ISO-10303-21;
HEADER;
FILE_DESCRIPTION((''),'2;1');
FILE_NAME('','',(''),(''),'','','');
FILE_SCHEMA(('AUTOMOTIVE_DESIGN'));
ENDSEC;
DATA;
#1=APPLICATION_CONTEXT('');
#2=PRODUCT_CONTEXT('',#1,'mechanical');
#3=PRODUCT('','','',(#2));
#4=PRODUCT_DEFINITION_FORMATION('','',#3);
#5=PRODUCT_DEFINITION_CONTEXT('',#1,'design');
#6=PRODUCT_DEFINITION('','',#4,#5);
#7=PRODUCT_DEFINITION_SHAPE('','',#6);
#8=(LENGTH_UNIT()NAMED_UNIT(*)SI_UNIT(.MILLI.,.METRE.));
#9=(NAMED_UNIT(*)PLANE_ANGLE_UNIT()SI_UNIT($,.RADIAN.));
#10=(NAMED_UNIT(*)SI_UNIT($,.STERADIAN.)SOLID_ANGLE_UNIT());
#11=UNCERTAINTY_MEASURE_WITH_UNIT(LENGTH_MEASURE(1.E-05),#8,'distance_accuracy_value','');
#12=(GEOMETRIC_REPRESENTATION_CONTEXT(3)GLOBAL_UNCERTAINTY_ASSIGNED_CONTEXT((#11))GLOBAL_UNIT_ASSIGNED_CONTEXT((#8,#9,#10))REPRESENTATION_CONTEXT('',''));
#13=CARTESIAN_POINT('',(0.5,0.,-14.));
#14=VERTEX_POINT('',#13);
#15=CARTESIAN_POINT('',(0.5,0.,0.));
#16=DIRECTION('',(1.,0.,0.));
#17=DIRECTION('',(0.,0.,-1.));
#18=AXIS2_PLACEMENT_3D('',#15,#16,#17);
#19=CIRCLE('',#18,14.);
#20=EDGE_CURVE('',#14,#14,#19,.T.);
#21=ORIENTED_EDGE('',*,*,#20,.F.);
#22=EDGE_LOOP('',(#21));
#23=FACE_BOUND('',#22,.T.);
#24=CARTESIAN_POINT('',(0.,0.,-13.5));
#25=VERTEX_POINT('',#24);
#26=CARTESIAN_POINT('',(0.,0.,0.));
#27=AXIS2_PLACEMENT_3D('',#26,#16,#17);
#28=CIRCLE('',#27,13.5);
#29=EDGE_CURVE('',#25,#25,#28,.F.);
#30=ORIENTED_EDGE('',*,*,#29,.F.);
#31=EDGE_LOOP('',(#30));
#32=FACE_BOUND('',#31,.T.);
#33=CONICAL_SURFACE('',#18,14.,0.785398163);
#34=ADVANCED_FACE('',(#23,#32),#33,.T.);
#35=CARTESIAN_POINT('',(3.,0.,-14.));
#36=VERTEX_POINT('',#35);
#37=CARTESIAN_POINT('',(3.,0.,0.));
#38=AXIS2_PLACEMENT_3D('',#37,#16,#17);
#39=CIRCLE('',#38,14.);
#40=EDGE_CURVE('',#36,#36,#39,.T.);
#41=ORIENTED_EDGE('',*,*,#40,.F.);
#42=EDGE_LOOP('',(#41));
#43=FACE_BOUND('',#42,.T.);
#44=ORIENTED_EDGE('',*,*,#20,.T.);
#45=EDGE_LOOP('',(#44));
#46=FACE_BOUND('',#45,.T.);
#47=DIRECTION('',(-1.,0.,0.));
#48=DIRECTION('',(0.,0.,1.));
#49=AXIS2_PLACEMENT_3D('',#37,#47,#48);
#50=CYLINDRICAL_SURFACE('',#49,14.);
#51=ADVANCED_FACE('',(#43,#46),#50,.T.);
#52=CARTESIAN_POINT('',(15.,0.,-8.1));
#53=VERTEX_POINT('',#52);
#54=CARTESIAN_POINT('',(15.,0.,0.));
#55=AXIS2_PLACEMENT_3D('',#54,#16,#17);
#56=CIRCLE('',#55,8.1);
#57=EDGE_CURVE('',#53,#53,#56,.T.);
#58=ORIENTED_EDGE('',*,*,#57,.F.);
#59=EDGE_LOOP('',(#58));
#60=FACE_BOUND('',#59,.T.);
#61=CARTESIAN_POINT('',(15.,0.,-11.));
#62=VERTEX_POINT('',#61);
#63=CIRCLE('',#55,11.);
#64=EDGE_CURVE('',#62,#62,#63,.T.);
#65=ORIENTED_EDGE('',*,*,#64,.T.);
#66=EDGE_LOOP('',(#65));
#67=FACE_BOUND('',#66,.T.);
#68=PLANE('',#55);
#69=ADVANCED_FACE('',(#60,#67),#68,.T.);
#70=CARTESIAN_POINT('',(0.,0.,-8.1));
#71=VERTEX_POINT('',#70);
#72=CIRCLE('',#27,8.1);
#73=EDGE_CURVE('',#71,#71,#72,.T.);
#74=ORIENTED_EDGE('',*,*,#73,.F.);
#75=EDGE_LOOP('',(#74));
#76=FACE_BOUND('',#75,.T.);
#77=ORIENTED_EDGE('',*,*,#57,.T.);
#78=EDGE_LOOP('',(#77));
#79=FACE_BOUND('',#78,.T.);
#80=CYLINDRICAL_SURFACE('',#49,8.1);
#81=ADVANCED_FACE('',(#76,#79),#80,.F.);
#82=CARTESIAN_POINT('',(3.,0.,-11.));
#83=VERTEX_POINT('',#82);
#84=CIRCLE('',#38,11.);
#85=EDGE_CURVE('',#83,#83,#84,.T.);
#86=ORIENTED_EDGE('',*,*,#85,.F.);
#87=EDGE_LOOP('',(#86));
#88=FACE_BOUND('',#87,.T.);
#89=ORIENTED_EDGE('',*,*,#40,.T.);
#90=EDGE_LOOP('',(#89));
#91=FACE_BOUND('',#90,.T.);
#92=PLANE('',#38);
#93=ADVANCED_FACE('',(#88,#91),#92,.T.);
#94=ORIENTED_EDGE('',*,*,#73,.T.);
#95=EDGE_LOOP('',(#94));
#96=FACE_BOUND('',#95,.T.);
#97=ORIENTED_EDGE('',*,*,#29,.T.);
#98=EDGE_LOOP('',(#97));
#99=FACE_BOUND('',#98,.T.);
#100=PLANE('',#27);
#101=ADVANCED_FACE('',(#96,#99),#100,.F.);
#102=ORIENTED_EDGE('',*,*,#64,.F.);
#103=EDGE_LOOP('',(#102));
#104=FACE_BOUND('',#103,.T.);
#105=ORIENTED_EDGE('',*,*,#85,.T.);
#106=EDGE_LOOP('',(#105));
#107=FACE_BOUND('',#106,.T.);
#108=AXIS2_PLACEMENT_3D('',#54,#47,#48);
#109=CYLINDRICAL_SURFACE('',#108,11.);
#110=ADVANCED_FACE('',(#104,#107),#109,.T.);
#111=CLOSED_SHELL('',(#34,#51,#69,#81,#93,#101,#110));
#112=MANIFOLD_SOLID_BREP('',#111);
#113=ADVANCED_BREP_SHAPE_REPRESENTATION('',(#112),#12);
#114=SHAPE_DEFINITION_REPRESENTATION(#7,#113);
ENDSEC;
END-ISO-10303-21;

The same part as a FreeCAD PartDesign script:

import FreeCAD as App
import Part
import Sketcher
from FreeCAD import Vector


def edges_at(feature, points):
    """Names of the edges that pass closest to the given points."""
    edges = feature.Shape.Edges
    near = lambda p: min(range(len(edges)), key=lambda i: edges[i].distToShape(Part.Vertex(*p))[0])
    return sorted({f"Edge{near(p) + 1}" for p in points})

doc = App.newDocument("Part")
params = doc.addObject("Spreadsheet::Sheet", "Params")
for row, (alias, value) in enumerate([
    ("sketch1_diameter", "28 mm"),
    ("sketch1_diameter2", "16.2 mm"),
    ("pad1_length", "3 mm"),
    ("sketch2_diameter", "22 mm"),
    ("sketch2_diameter2", "16.2 mm"),
    ("pad2_length", "12 mm"),
    ("chamfer_size", "0.5 mm"),
], start=1):
    params.set(f"A{row}", alias)
    params.set(f"B{row}", "=" + value)
    params.setAlias(f"B{row}", alias)

body = doc.addObject("PartDesign::Body", "Body")

# Sketch on YZ plane
sketch1 = body.newObject("Sketcher::SketchObject", "Sketch")
sketch1.AttachmentSupport = (doc.getObject("YZ_Plane"), [""])
sketch1.MapMode = "FlatFace"
sketch1.addGeometry(Part.Circle(Vector(0, 0, 0), Vector(0, 0, 1), 14), False)
sketch1.addGeometry(Part.Circle(Vector(0, 0, 0), Vector(0, 0, 1), 8), False)
sketch1.addConstraint(Sketcher.Constraint("Coincident", 0, 3, -1, 1))
sketch1.addConstraint(Sketcher.Constraint("Coincident", 1, 3, -1, 1))
sketch1.addConstraint(Sketcher.Constraint("Diameter", 0, 28.0))
sketch1.addConstraint(Sketcher.Constraint("Diameter", 1, 16.2))
sketch1.setExpression("Constraints[2]", "Params.sketch1_diameter")
sketch1.setExpression("Constraints[3]", "Params.sketch1_diameter2")
pad1 = body.newObject("PartDesign::Pad", "Pad")
pad1.Profile = sketch1
pad1.setExpression("Length", "Params.pad1_length")

# Sketch on YZ plane
sketch2 = body.newObject("Sketcher::SketchObject", "Sketch001")
sketch2.AttachmentSupport = (doc.getObject("YZ_Plane"), [""])
sketch2.MapMode = "FlatFace"
sketch2.AttachmentOffset = App.Placement(Vector(0, 0, 3), App.Rotation())
sketch2.addGeometry(Part.Circle(Vector(0, 0, 0), Vector(0, 0, 1), 11), False)
sketch2.addGeometry(Part.Circle(Vector(0, 0, 0), Vector(0, 0, 1), 8), False)
sketch2.addConstraint(Sketcher.Constraint("Coincident", 0, 3, -1, 1))
sketch2.addConstraint(Sketcher.Constraint("Coincident", 1, 3, -1, 1))
sketch2.addConstraint(Sketcher.Constraint("Diameter", 0, 22.0))
sketch2.addConstraint(Sketcher.Constraint("Diameter", 1, 16.2))
sketch2.setExpression("Constraints[2]", "Params.sketch2_diameter")
sketch2.setExpression("Constraints[3]", "Params.sketch2_diameter2")
pad2 = body.newObject("PartDesign::Pad", "Pad001")
pad2.Profile = sketch2
pad2.setExpression("Length", "Params.pad2_length")
doc.recompute()

chamfer = body.newObject("PartDesign::Chamfer", "Chamfer")
chamfer.Base = (pad2, edges_at(pad2, [(0, 0, 14)]))
chamfer.setExpression("Size", "Params.chamfer_size")

doc.recompute()
